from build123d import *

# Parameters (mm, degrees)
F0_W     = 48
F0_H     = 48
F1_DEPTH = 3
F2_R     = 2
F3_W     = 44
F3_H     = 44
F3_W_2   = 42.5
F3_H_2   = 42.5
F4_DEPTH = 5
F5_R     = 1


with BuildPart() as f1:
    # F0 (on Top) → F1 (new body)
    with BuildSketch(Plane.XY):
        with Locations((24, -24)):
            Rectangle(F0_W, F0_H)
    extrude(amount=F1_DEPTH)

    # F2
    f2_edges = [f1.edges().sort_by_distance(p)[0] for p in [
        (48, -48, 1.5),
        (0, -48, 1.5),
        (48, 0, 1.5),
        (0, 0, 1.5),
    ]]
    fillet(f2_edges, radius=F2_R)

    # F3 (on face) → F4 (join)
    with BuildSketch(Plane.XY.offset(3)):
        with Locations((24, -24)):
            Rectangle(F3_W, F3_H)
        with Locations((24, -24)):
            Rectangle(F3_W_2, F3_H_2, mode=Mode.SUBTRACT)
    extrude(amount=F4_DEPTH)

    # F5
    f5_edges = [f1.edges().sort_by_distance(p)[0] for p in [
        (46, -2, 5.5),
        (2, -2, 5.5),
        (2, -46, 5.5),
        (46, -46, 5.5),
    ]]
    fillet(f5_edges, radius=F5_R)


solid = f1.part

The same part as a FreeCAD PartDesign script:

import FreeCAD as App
import Part
import Sketcher

V = App.Vector


def edges_at(feature, points):
    """Names of the edges that pass closest to the given points."""
    edges = feature.Shape.Edges
    near = lambda p: min(range(len(edges)), key=lambda i: edges[i].distToShape(Part.Vertex(*p))[0])
    return sorted({f"Edge{near(p) + 1}" for p in points})


def add_polygon(sketch, points):
    """Adds a closed chain of lines whose ends are joined by coincident constraints."""
    first, n = sketch.GeometryCount, len(points)
    for a, b in zip(points, points[1:] + points[:1]):
        sketch.addGeometry(Part.LineSegment(App.Vector(*a, 0), App.Vector(*b, 0)), False)
    for i in range(n):
        sketch.addConstraint(Sketcher.Constraint("Coincident", first + i, 2, first + (i + 1) % n, 1))

doc = App.newDocument("Part")
body = doc.addObject("PartDesign::Body", "Body")

# Sketch on XY plane
sketch1 = body.newObject("Sketcher::SketchObject", "Sketch")
sketch1.AttachmentSupport = (doc.getObject("XY_Plane"), [""])
sketch1.MapMode = "FlatFace"
add_polygon(sketch1, [(0, 0), (0, -48), (48, -48), (48, 0)])  # lines 0-3
sketch1.addConstraint([
    Sketcher.Constraint("Vertical", 0),
    Sketcher.Constraint("Horizontal", 1),
    Sketcher.Constraint("Vertical", 2),
    Sketcher.Constraint("Horizontal", 3),
    Sketcher.Constraint("Coincident", 3, 2, -1, 1),
    Sketcher.Constraint("Equal", 3, 0),
    Sketcher.Constraint("DistanceX", 1, 1, 1, 2, 48.0),
])
pad1 = body.newObject("PartDesign::Pad", "Pad")
pad1.Profile = sketch1
pad1.Length = 3
doc.recompute()

fillet = body.newObject("PartDesign::Fillet", "Fillet")
fillet.Base = (pad1, edges_at(pad1, [
    (48, -48, 1.5),
    (0, -48, 1.5),
    (48, 0, 1.5),
    (0, 0, 1.5),
]))
fillet.Radius = 2

# Sketch on XY plane
sketch2 = body.newObject("Sketcher::SketchObject", "Sketch001")
sketch2.AttachmentSupport = (doc.getObject("XY_Plane"), [""])
sketch2.MapMode = "FlatFace"
sketch2.AttachmentOffset = App.Placement(V(0, 0, 3), App.Rotation())
add_polygon(sketch2, [(2, -2), (2, -46), (46, -46), (46, -2)])  # lines 0-3
add_polygon(sketch2, [(45.25, -45.25), (2.75, -45.25), (2.75, -2.75), (45.25, -2.75)])  # lines 4-7
sketch2.addConstraint([
    Sketcher.Constraint("Vertical", 0),
    Sketcher.Constraint("Horizontal", 1),
    Sketcher.Constraint("Vertical", 2),
    Sketcher.Constraint("Horizontal", 3),
    Sketcher.Constraint("Horizontal", 4),
    Sketcher.Constraint("Vertical", 5),
    Sketcher.Constraint("Horizontal", 6),
    Sketcher.Constraint("Vertical", 7),
    Sketcher.Constraint("Equal", 3, 0),
    Sketcher.Constraint("Equal", 6, 5),
    Sketcher.Constraint("DistanceX", 1, 1, 1, 2, 44.0),
    Sketcher.Constraint("DistanceX", 4, 2, 4, 1, 42.5),
    Sketcher.Constraint("DistanceX", -1, 1, 0, 2, 2.0),
    Sketcher.Constraint("DistanceY", 0, 2, -1, 1, 46.0),
    Sketcher.Constraint("DistanceX", -1, 1, 4, 2, 2.75),
    Sketcher.Constraint("DistanceY", 4, 2, -1, 1, 45.25),
])
pad2 = body.newObject("PartDesign::Pad", "Pad001")
pad2.Profile = sketch2
pad2.Length = 5
doc.recompute()

fillet2 = body.newObject("PartDesign::Fillet", "Fillet001")
fillet2.Base = (pad2, edges_at(pad2, [
    (46, -2, 5.5),
    (2, -2, 5.5),
    (2, -46, 5.5),
    (46, -46, 5.5),
]))
fillet2.Radius = 1

doc.recompute()
